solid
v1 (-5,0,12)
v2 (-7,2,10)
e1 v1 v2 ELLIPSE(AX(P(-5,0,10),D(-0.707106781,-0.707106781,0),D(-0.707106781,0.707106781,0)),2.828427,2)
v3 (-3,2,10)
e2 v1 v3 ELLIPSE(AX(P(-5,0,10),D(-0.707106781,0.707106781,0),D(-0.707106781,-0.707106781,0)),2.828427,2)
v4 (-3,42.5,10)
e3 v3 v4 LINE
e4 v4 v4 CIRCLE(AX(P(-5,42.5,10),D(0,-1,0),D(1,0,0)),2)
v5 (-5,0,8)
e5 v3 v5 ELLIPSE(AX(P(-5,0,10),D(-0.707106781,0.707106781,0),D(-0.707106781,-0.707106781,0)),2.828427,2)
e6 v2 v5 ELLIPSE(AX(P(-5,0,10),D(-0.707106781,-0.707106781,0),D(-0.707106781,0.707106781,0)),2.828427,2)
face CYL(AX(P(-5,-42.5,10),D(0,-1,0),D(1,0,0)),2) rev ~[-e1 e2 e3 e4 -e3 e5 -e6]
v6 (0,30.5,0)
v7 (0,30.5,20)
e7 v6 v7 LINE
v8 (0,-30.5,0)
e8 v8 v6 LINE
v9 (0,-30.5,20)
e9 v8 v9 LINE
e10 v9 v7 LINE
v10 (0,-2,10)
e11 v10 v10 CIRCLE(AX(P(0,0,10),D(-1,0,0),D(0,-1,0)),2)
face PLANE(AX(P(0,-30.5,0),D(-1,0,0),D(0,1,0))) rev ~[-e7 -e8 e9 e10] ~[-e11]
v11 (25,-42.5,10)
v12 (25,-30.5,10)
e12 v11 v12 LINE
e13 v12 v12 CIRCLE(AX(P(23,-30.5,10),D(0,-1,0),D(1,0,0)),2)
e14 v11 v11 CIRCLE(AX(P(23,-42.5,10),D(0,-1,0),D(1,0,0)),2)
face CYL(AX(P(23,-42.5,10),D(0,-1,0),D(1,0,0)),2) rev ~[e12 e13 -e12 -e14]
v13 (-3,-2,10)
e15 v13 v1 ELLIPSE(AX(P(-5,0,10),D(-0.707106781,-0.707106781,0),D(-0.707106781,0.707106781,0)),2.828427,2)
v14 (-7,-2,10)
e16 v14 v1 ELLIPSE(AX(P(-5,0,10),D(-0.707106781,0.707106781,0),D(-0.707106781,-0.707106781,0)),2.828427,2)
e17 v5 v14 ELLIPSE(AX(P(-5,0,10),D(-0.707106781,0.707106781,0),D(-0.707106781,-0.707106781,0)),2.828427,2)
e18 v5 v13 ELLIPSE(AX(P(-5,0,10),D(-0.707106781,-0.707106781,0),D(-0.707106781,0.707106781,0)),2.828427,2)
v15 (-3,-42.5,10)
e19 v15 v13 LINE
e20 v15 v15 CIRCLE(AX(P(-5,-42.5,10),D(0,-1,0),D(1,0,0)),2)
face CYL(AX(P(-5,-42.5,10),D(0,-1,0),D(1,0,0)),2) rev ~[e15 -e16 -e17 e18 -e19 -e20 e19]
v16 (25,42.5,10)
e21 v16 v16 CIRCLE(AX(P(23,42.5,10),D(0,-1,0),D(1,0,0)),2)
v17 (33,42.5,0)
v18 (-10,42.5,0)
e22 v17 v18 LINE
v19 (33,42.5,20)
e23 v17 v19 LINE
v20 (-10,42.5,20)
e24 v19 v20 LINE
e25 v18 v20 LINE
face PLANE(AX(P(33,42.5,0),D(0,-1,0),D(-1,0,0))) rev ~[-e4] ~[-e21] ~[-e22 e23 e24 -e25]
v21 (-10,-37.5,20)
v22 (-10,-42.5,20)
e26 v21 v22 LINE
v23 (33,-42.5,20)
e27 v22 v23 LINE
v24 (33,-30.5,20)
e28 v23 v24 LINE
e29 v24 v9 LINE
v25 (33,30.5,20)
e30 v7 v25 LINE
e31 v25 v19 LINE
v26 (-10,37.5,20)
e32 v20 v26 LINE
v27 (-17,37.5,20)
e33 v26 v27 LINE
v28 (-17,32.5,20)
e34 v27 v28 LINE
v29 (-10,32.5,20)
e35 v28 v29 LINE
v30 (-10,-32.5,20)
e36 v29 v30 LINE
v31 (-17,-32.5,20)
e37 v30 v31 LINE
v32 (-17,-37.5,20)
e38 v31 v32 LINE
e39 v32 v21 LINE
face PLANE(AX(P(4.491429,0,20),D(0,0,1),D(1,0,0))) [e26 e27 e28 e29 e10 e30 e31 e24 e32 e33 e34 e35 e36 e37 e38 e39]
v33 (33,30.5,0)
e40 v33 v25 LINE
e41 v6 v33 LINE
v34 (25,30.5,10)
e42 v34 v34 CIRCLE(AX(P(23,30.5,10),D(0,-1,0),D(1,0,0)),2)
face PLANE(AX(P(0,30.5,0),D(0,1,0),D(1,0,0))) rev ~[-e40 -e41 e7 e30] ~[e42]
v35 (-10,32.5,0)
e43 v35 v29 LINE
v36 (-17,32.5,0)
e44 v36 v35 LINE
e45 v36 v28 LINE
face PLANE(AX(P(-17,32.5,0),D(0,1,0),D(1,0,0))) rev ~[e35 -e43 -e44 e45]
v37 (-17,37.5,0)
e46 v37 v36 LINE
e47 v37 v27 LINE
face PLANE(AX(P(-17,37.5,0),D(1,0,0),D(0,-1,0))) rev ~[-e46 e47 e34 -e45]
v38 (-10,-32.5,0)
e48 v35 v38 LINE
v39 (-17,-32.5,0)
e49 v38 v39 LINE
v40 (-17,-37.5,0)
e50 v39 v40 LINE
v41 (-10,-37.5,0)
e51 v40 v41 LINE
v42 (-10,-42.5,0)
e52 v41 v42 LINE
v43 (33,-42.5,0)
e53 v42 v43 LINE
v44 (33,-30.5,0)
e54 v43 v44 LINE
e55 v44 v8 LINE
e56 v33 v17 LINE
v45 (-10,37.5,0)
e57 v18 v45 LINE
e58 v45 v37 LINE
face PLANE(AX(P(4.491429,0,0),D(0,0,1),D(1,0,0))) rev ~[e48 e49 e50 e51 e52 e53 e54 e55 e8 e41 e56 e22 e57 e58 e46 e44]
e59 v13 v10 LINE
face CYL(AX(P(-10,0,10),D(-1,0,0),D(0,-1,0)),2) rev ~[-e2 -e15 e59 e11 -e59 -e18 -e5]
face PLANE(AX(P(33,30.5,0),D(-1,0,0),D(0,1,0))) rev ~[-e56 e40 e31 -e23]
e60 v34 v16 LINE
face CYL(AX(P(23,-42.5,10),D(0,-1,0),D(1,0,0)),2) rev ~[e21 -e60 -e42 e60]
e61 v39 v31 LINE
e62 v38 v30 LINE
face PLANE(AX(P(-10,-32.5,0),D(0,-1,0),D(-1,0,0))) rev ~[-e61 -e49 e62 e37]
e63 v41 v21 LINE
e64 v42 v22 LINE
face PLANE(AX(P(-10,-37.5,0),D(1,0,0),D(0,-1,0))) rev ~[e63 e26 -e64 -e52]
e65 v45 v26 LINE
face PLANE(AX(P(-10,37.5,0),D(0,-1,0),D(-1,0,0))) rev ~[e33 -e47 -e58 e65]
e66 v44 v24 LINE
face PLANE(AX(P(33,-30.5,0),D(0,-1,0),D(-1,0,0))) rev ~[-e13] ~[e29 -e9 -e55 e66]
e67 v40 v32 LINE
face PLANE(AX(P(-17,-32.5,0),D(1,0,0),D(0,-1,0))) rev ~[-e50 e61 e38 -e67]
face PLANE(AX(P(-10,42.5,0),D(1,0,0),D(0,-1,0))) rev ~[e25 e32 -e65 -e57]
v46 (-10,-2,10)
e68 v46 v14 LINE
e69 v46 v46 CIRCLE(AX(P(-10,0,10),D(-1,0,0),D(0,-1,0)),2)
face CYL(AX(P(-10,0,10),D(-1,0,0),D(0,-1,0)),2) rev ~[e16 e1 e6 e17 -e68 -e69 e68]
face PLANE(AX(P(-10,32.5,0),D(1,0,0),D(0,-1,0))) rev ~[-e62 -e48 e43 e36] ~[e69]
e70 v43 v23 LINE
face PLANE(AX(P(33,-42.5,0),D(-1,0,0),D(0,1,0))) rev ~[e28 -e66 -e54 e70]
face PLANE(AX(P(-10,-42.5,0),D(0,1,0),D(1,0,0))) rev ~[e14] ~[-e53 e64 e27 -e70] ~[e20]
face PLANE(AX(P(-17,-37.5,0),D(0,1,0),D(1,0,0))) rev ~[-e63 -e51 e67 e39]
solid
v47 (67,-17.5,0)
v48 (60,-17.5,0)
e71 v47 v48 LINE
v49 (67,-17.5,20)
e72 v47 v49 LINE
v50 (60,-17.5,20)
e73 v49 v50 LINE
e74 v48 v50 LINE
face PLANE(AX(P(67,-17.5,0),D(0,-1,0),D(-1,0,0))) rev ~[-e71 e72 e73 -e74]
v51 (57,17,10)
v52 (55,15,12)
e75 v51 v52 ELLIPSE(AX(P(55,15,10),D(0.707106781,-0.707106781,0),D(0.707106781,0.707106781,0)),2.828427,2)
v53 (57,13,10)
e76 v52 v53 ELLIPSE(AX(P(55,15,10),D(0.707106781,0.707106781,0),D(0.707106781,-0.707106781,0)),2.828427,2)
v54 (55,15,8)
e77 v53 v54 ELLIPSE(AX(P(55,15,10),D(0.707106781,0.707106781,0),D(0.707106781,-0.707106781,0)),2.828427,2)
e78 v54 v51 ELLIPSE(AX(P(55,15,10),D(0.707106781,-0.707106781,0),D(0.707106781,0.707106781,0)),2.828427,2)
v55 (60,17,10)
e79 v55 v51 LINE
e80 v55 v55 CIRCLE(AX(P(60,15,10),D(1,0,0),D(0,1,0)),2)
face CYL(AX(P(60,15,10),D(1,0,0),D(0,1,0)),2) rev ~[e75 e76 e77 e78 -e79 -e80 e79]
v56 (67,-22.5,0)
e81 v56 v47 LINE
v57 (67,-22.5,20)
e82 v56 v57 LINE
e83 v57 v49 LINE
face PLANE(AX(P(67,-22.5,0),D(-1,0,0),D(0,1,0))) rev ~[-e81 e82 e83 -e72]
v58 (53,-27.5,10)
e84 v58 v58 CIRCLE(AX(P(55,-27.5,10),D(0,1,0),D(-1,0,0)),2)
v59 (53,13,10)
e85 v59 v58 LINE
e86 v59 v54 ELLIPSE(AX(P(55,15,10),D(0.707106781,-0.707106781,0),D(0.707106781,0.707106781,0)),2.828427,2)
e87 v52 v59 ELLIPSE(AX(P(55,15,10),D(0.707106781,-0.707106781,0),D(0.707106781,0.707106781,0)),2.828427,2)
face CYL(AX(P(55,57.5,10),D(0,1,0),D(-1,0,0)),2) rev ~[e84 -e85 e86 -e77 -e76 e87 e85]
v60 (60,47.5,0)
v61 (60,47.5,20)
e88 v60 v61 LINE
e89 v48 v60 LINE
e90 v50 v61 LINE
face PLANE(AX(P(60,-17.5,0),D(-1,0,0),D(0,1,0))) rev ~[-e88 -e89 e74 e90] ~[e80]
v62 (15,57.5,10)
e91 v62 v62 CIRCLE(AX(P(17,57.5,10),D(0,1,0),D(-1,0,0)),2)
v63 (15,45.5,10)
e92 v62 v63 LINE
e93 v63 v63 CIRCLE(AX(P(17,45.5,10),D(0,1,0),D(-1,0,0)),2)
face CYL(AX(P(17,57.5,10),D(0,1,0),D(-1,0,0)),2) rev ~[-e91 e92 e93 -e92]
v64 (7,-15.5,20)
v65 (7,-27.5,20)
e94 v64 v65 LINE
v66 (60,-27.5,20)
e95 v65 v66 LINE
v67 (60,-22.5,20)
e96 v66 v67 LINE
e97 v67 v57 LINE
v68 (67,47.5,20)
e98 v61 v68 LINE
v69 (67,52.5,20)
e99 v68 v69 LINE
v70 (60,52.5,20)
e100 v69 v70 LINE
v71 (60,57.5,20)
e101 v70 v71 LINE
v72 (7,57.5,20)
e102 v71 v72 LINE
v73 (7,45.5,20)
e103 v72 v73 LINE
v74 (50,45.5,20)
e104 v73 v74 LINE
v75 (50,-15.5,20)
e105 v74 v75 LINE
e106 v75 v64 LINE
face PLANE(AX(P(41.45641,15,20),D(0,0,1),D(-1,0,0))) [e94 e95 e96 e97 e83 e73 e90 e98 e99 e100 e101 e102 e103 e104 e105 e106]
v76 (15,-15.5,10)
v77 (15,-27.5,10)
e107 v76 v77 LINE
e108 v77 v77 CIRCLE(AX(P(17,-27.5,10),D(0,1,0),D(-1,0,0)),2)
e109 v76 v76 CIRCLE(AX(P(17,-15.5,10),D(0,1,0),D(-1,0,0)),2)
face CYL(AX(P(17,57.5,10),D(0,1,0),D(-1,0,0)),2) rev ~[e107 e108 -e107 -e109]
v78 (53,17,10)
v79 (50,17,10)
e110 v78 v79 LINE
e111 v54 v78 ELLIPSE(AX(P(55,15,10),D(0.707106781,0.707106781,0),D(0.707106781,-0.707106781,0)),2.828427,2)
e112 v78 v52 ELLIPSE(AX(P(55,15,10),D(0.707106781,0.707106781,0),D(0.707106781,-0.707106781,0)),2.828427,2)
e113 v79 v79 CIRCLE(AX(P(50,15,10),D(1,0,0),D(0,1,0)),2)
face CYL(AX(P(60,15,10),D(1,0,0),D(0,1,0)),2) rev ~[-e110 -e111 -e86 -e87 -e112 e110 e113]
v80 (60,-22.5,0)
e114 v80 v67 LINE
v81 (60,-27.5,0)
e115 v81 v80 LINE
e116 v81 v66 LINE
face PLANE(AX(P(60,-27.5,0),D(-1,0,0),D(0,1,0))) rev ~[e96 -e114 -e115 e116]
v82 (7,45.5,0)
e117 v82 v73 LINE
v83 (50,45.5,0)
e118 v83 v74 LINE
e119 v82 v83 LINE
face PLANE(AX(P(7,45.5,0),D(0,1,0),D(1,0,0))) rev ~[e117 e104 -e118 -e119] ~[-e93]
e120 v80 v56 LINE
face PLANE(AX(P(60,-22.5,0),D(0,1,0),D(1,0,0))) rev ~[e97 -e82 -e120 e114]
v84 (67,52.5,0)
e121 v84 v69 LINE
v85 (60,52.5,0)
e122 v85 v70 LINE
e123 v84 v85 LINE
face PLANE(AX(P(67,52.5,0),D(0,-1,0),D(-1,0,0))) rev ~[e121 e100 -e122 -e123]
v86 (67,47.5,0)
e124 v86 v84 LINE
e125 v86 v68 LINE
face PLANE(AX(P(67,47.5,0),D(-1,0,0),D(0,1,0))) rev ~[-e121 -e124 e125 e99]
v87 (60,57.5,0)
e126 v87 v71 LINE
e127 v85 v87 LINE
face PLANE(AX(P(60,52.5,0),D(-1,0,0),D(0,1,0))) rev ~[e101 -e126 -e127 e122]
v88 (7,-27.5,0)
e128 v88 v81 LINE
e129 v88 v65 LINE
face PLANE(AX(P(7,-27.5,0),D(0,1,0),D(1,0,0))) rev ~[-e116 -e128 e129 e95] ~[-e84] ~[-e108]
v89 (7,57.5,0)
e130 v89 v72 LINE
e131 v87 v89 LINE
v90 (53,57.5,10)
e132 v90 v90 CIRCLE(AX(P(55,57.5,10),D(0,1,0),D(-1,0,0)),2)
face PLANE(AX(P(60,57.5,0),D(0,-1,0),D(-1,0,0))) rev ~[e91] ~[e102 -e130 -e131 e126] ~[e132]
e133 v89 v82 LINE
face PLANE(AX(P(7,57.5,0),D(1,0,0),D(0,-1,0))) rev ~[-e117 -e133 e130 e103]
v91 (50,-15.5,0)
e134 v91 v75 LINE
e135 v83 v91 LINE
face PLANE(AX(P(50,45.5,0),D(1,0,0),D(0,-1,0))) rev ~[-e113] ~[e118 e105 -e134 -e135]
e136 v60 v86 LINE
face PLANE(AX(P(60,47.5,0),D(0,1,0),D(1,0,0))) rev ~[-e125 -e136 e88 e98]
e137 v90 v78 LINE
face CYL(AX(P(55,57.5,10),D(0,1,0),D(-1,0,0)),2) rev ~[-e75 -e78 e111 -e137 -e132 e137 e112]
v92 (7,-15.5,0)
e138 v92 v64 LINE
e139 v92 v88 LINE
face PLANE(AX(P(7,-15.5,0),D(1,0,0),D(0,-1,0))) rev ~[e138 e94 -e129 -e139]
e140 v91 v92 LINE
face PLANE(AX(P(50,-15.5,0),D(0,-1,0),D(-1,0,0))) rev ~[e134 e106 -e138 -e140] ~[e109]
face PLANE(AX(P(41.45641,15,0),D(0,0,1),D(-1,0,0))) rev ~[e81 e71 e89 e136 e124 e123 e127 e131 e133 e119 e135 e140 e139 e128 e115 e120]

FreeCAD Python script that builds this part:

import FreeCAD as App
import Part
import Sketcher
from FreeCAD import Vector
Q = App.Units.Quantity


def add_polygon(sketch, points):
    """Adds a closed chain of lines whose ends are joined by coincident constraints."""
    first, n = sketch.GeometryCount, len(points)
    for a, b in zip(points, points[1:] + points[:1]):
        sketch.addGeometry(Part.LineSegment(App.Vector(*a, 0), App.Vector(*b, 0)), False)
    for i in range(n):
        sketch.addConstraint(Sketcher.Constraint("Coincident", first + i, 2, first + (i + 1) % n, 1))

doc = App.newDocument("Part")
params = doc.addObject("Spreadsheet::Sheet", "Params")
for row, (alias, value) in enumerate([
    ("sketch1_width", "43 mm"),
    ("sketch1_width2", "33 mm"),
    ("sketch1_width3", "7 mm"),
    ("sketch1_height", "12 mm"),
    ("sketch1_height2", "61 mm"),
    ("pad1_length", "20 mm"),
    ("sketch2_diameter", "4 mm"),
    ("sketch3_diameter", "4 mm"),
    ("sketch4_width", "53 mm"),
    ("sketch4_width2", "43 mm"),
    ("sketch4_width3", "7 mm"),
    ("sketch4_height", "12 mm"),
    ("sketch4_height2", "61 mm"),
    ("pad2_length", "20 mm"),
    ("sketch5_diameter", "4 mm"),
    ("sketch6_diameter", "4 mm"),
], start=1):
    params.set(f"A{row}", alias)
    params.set(f"B{row}", "=" + value)
    params.setAlias(f"B{row}", alias)

body = doc.addObject("PartDesign::Body", "Body")

# Sketch on XY plane
sketch1 = body.newObject("Sketcher::SketchObject", "Sketch")
sketch1.AttachmentSupport = (doc.getObject("XY_Plane"), [""])
sketch1.MapMode = "FlatFace"
add_polygon(sketch1, [(-10, -42), (33, -42), (33, -30), (0, -30), (0, 30), (33, 30), (33, 42), (-10, 42), (-10, 38), (-17, 38), (-17, 32), (-10, 32), (-10, -32), (-17, -32), (-17, -38), (-10, -38)])  # lines 0-15
sketch1.addConstraint(Sketcher.Constraint("Horizontal", 0))
sketch1.addConstraint(Sketcher.Constraint("Vertical", 1))
sketch1.addConstraint(Sketcher.Constraint("Horizontal", 2))
sketch1.addConstraint(Sketcher.Constraint("Vertical", 3))
sketch1.addConstraint(Sketcher.Constraint("Horizontal", 4))
sketch1.addConstraint(Sketcher.Constraint("Vertical", 5))
sketch1.addConstraint(Sketcher.Constraint("Horizontal", 6))
sketch1.addConstraint(Sketcher.Constraint("Vertical", 7))
sketch1.addConstraint(Sketcher.Constraint("Horizontal", 8))
sketch1.addConstraint(Sketcher.Constraint("Vertical", 9))
sketch1.addConstraint(Sketcher.Constraint("Horizontal", 10))
sketch1.addConstraint(Sketcher.Constraint("Vertical", 11))
sketch1.addConstraint(Sketcher.Constraint("Horizontal", 12))
sketch1.addConstraint(Sketcher.Constraint("Vertical", 13))
sketch1.addConstraint(Sketcher.Constraint("Horizontal", 14))
sketch1.addConstraint(Sketcher.Constraint("Vertical", 15))
sketch1.addConstraint(Sketcher.Constraint("Symmetric", 2, 2, 3, 2, -1, 1))
sketch1.addConstraint(Sketcher.Constraint("Symmetric", 0, 2, 5, 2, -1))
sketch1.addConstraint(Sketcher.Constraint("Symmetric", 9, 2, 12, 2, -1))
sketch1.addConstraint(Sketcher.Constraint("Symmetric", 7, 2, 14, 2, -1))
sketch1.addConstraint(Sketcher.Constraint("Vertical", 7, 2, 10, 2))
sketch1.addConstraint(Sketcher.Constraint("Equal", 7, 9))
sketch1.addConstraint(Sketcher.Constraint("DistanceX", 0, 1, 0, 2, Q("43 mm")))
sketch1.addConstraint(Sketcher.Constraint("DistanceX", 2, 2, 2, 1, Q("33 mm")))
sketch1.addConstraint(Sketcher.Constraint("DistanceX", 8, 2, 8, 1, Q("7 mm")))
sketch1.addConstraint(Sketcher.Constraint("DistanceY", 1, 1, 1, 2, Q("12 mm")))
sketch1.addConstraint(Sketcher.Constraint("DistanceY", 3, 1, 3, 2, Q("61 mm")))
sketch1.addConstraint(Sketcher.Constraint("DistanceY", 7, 2, 7, 1, Q("5 mm")))
sketch1.setExpression("Constraints[38]", "Params.sketch1_width")
sketch1.setExpression("Constraints[39]", "Params.sketch1_width2")
sketch1.setExpression("Constraints[40]", "Params.sketch1_width3")
sketch1.setExpression("Constraints[41]", "Params.sketch1_height")
sketch1.setExpression("Constraints[42]", "Params.sketch1_height2")
pad1 = body.newObject("PartDesign::Pad", "Pad")
pad1.Profile = sketch1
pad1.setExpression("Length", "Params.pad1_length")

# Sketch on YZ plane
sketch2 = body.newObject("Sketcher::SketchObject", "Sketch001")
sketch2.AttachmentSupport = (doc.getObject("YZ_Plane"), [""])
sketch2.MapMode = "FlatFace"
sketch2.AttachmentOffset = App.Placement(Vector(0, 0, -10), App.Rotation())
sketch2.addGeometry(Part.Circle(Vector(0, 10, 0), Vector(0, 0, 1), 2), False)
sketch2.addConstraint(Sketcher.Constraint("PointOnObject", 0, 3, -2))
sketch2.addConstraint(Sketcher.Constraint("Diameter", 0, Q("4 mm")))
sketch2.addConstraint(Sketcher.Constraint("DistanceY", -1, 1, 0, 3, Q("10 mm")))
sketch2.setExpression("Constraints[1]", "Params.sketch2_diameter")
pocket1 = body.newObject("PartDesign::Pocket", "Pocket")
pocket1.Profile = sketch2
pocket1.Type = "ThroughAll"
pocket1.Reversed = True

# Sketch on XZ plane
sketch3 = body.newObject("Sketcher::SketchObject", "Sketch002")
sketch3.AttachmentSupport = (doc.getObject("XZ_Plane"), [""])
sketch3.MapMode = "FlatFace"
sketch3.AttachmentOffset = App.Placement(Vector(0, 0, 42.5), App.Rotation())
sketch3.addGeometry(Part.Circle(Vector(-5, 10, 0), Vector(0, 0, 1), 2), False)
sketch3.addGeometry(Part.Circle(Vector(23, 10, 0), Vector(0, 0, 1), 2), False)
sketch3.addConstraint(Sketcher.Constraint("Equal", 0, 1))
sketch3.addConstraint(Sketcher.Constraint("Horizontal", 0, 3, 1, 3))
sketch3.addConstraint(Sketcher.Constraint("Diameter", 0, Q("4 mm")))
sketch3.addConstraint(Sketcher.Constraint("DistanceX", 0, 3, -1, 1, Q("5 mm")))
sketch3.addConstraint(Sketcher.Constraint("DistanceY", -1, 1, 0, 3, Q("10 mm")))
sketch3.addConstraint(Sketcher.Constraint("DistanceX", -1, 1, 1, 3, Q("23 mm")))
sketch3.setExpression("Constraints[2]", "Params.sketch3_diameter")
pocket2 = body.newObject("PartDesign::Pocket", "Pocket001")
pocket2.Profile = sketch3
pocket2.Type = "ThroughAll"
body2 = doc.addObject("PartDesign::Body", "Body001")

# Sketch on XY plane
sketch4 = body2.newObject("Sketcher::SketchObject", "Sketch003")
sketch4.AttachmentSupport = (doc.getObject("XY_Plane001"), [""])
sketch4.MapMode = "FlatFace"
add_polygon(sketch4, [(60, 58), (7, 58), (7, 46), (50, 46), (50, -16), (7, -16), (7, -28), (60, -28), (60, -22), (67, -22), (67, -18), (60, -18), (60, 48), (67, 48), (67, 52), (60, 52)])  # lines 0-15
sketch4.addConstraint(Sketcher.Constraint("Horizontal", 0))
sketch4.addConstraint(Sketcher.Constraint("Vertical", 1))
sketch4.addConstraint(Sketcher.Constraint("Horizontal", 2))
sketch4.addConstraint(Sketcher.Constraint("Vertical", 3))
sketch4.addConstraint(Sketcher.Constraint("Horizontal", 4))
sketch4.addConstraint(Sketcher.Constraint("Vertical", 5))
sketch4.addConstraint(Sketcher.Constraint("Horizontal", 6))
sketch4.addConstraint(Sketcher.Constraint("Vertical", 7))
sketch4.addConstraint(Sketcher.Constraint("Horizontal", 8))
sketch4.addConstraint(Sketcher.Constraint("Vertical", 9))
sketch4.addConstraint(Sketcher.Constraint("Horizontal", 10))
sketch4.addConstraint(Sketcher.Constraint("Vertical", 11))
sketch4.addConstraint(Sketcher.Constraint("Horizontal", 12))
sketch4.addConstraint(Sketcher.Constraint("Vertical", 13))
sketch4.addConstraint(Sketcher.Constraint("Horizontal", 14))
sketch4.addConstraint(Sketcher.Constraint("Vertical", 15))
sketch4.addConstraint(Sketcher.Constraint("Vertical", 1, 2, 4, 2))
sketch4.addConstraint(Sketcher.Constraint("Vertical", 7, 2, 10, 2))
sketch4.addConstraint(Sketcher.Constraint("Vertical", 9, 2, 12, 2))
sketch4.addConstraint(Sketcher.Constraint("Vertical", 11, 2, 14, 2))
sketch4.addConstraint(Sketcher.Constraint("Equal", 1, 5))
sketch4.addConstraint(Sketcher.Constraint("Equal", 7, 9))
sketch4.addConstraint(Sketcher.Constraint("Equal", 9, 13))
sketch4.addConstraint(Sketcher.Constraint("Equal", 13, 15))
sketch4.addConstraint(Sketcher.Constraint("DistanceX", 0, 2, 0, 1, Q("53 mm")))
sketch4.addConstraint(Sketcher.Constraint("DistanceX", 2, 1, 2, 2, Q("43 mm")))
sketch4.addConstraint(Sketcher.Constraint("DistanceX", 8, 1, 8, 2, Q("7 mm")))
sketch4.addConstraint(Sketcher.Constraint("DistanceY", 1, 2, 1, 1, Q("12 mm")))
sketch4.addConstraint(Sketcher.Constraint("DistanceY", 3, 2, 3, 1, Q("61 mm")))
sketch4.addConstraint(Sketcher.Constraint("DistanceY", 7, 1, 7, 2, Q("5 mm")))
sketch4.addConstraint(Sketcher.Constraint("DistanceX", -1, 1, 0, 2, Q("7 mm")))
sketch4.addConstraint(Sketcher.Constraint("DistanceY", -1, 1, 0, 2, Q("57.5 mm")))
sketch4.setExpression("Constraints[40]", "Params.sketch4_width")
sketch4.setExpression("Constraints[41]", "Params.sketch4_width2")
sketch4.setExpression("Constraints[42]", "Params.sketch4_width3")
sketch4.setExpression("Constraints[43]", "Params.sketch4_height")
sketch4.setExpression("Constraints[44]", "Params.sketch4_height2")
pad2 = body2.newObject("PartDesign::Pad", "Pad001")
pad2.Profile = sketch4
pad2.setExpression("Length", "Params.pad2_length")

# Sketch on YZ plane
sketch5 = body2.newObject("Sketcher::SketchObject", "Sketch004")
sketch5.AttachmentSupport = (doc.getObject("YZ_Plane001"), [""])
sketch5.MapMode = "FlatFace"
sketch5.AttachmentOffset = App.Placement(Vector(0, 0, 60), App.Rotation())
sketch5.addGeometry(Part.Circle(Vector(15, 10, 0), Vector(0, 0, 1), 2), False)
sketch5.addConstraint(Sketcher.Constraint("Diameter", 0, Q("4 mm")))
sketch5.addConstraint(Sketcher.Constraint("DistanceX", -1, 1, 0, 3, Q("15 mm")))
sketch5.addConstraint(Sketcher.Constraint("DistanceY", -1, 1, 0, 3, Q("10 mm")))
sketch5.setExpression("Constraints[0]", "Params.sketch5_diameter")
pocket3 = body2.newObject("PartDesign::Pocket", "Pocket002")
pocket3.Profile = sketch5
pocket3.Type = "ThroughAll"

# Sketch on XZ plane
sketch6 = body2.newObject("Sketcher::SketchObject", "Sketch005")
sketch6.AttachmentSupport = (doc.getObject("XZ_Plane001"), [""])
sketch6.MapMode = "FlatFace"
sketch6.AttachmentOffset = App.Placement(Vector(0, 0, -57.5), App.Rotation())
sketch6.addGeometry(Part.Circle(Vector(55, 10, 0), Vector(0, 0, 1), 2), False)
sketch6.addGeometry(Part.Circle(Vector(17, 10, 0), Vector(0, 0, 1), 2), False)
sketch6.addConstraint(Sketcher.Constraint("Equal", 0, 1))
sketch6.addConstraint(Sketcher.Constraint("Horizontal", 0, 3, 1, 3))
sketch6.addConstraint(Sketcher.Constraint("Diameter", 0, Q("4 mm")))
sketch6.addConstraint(Sketcher.Constraint("DistanceX", -1, 1, 0, 3, Q("55 mm")))
sketch6.addConstraint(Sketcher.Constraint("DistanceY", -1, 1, 0, 3, Q("10 mm")))
sketch6.addConstraint(Sketcher.Constraint("DistanceX", -1, 1, 1, 3, Q("17 mm")))
sketch6.setExpression("Constraints[2]", "Params.sketch6_diameter")
pocket4 = body2.newObject("PartDesign::Pocket", "Pocket003")
pocket4.Profile = sketch6
pocket4.Type = "ThroughAll"
pocket4.Reversed = True

doc.recompute()
